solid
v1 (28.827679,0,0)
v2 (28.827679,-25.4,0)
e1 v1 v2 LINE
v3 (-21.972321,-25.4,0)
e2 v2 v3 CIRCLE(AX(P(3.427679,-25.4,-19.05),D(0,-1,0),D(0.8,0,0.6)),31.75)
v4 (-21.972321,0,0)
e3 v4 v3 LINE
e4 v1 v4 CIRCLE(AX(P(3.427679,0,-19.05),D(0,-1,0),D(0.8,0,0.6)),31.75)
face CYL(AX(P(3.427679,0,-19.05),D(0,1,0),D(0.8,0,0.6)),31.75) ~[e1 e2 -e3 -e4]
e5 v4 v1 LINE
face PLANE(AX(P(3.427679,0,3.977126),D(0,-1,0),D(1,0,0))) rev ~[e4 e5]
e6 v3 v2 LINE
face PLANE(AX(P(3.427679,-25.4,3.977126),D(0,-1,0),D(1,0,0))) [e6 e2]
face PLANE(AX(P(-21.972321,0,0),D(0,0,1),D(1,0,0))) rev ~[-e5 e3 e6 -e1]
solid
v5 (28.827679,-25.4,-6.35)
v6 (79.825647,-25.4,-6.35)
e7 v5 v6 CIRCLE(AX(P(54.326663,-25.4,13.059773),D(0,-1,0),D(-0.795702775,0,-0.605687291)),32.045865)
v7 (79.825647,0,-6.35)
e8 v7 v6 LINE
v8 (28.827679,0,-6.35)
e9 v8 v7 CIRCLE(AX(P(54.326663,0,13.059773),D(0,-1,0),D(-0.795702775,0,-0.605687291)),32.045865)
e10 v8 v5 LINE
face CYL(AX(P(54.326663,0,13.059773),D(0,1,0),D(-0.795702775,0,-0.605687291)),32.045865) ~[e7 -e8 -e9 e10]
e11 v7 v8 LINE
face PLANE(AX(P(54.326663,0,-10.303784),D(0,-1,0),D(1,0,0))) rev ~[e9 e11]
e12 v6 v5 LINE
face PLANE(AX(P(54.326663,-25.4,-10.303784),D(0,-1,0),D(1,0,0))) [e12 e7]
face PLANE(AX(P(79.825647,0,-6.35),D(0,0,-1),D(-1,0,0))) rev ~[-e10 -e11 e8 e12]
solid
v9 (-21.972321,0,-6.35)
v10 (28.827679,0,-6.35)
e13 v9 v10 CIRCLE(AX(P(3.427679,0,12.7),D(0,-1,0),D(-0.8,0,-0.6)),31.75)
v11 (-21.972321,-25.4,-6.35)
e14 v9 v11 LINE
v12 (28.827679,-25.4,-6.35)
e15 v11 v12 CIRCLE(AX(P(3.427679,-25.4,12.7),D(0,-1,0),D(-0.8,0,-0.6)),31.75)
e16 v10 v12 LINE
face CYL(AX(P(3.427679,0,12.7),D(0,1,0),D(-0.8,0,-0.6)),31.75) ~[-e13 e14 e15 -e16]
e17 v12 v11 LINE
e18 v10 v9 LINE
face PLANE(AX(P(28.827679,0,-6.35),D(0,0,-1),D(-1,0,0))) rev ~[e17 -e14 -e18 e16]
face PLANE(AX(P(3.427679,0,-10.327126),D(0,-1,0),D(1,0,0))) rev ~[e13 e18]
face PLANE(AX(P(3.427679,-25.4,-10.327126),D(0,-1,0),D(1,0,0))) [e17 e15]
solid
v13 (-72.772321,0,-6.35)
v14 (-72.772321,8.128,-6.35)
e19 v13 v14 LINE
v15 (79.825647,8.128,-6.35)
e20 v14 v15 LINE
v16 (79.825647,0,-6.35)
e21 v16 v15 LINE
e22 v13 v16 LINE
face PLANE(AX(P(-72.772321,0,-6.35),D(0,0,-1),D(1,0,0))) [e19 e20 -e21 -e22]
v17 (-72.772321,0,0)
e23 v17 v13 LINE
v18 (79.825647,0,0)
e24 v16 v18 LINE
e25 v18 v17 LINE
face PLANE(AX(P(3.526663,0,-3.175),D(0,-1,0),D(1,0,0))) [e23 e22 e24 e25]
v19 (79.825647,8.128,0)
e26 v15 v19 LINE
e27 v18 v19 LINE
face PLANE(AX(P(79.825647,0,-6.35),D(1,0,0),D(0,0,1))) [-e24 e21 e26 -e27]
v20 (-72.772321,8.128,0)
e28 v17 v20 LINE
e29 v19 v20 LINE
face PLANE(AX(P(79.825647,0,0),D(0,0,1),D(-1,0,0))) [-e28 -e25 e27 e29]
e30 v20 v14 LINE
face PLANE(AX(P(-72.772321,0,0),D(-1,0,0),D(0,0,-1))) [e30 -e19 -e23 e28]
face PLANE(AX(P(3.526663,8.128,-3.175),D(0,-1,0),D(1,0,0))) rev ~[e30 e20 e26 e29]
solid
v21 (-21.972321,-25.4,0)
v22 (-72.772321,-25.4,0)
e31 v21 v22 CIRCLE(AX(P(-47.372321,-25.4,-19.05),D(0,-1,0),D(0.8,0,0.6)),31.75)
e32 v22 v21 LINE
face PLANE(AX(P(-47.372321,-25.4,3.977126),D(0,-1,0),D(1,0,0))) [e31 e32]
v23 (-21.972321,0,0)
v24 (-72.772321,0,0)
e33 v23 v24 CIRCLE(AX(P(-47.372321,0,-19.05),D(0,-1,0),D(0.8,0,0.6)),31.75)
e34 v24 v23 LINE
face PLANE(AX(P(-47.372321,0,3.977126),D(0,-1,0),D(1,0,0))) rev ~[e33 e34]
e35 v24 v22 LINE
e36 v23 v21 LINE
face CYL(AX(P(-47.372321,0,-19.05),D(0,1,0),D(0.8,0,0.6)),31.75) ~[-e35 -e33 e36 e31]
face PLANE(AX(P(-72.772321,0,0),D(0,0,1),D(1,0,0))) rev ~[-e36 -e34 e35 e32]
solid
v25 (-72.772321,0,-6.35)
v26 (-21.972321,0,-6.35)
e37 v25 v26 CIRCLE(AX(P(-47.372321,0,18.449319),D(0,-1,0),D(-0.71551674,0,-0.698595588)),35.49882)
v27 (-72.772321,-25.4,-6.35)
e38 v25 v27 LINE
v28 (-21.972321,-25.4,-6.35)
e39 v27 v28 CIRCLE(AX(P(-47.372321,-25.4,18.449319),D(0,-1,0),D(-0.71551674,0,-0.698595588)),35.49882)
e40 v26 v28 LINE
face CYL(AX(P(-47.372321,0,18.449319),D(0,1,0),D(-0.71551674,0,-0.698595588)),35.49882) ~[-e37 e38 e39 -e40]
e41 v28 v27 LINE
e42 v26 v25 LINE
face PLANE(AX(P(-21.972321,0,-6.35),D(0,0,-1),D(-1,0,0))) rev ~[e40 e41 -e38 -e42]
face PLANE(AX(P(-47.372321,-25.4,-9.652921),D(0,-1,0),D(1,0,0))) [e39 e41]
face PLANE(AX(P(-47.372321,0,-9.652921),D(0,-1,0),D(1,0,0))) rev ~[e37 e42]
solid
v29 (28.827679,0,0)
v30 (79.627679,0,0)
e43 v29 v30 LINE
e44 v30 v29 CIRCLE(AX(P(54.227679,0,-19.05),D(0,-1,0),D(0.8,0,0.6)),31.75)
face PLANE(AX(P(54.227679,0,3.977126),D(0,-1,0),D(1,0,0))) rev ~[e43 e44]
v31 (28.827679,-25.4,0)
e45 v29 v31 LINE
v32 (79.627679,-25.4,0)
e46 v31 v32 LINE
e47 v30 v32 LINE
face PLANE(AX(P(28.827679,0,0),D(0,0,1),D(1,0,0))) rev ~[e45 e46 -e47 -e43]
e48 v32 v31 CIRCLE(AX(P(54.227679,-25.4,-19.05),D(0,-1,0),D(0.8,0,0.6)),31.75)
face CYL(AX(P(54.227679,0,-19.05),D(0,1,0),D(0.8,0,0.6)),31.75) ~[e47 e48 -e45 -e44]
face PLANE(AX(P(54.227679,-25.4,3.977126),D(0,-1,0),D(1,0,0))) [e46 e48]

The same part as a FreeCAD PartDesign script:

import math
import FreeCAD as App
import Part
import Sketcher
Q = App.Units.Quantity


def add_polygon(sketch, points):
    """Adds a closed chain of lines whose ends are joined by coincident constraints."""
    first, n = sketch.GeometryCount, len(points)
    for a, b in zip(points, points[1:] + points[:1]):
        sketch.addGeometry(Part.LineSegment(App.Vector(*a, 0), App.Vector(*b, 0)), False)
    for i in range(n):
        sketch.addConstraint(Sketcher.Constraint("Coincident", first + i, 2, first + (i + 1) % n, 1))

doc = App.newDocument("Part")
params = doc.addObject("Spreadsheet::Sheet", "Params")
for row, (alias, value) in enumerate([
    ("sketch1_width", "2 in"),
    ("sketch1_radius", "1.25 in"),
    ("pad1_length", "1 in"),
    ("sketch2_height", "0.25 in"),
    ("pad2_length", "0.32 in"),
], start=1):
    params.set(f"A{row}", alias)
    params.set(f"B{row}", "=" + value)
    params.setAlias(f"B{row}", alias)

body = doc.addObject("PartDesign::Body", "Body")
body.AllowCompound = True

# Sketch on XZ plane
sketch1 = body.newObject("Sketcher::SketchObject", "Sketch")
sketch1.AttachmentSupport = (doc.getObject("XZ_Plane"), [""])
sketch1.MapMode = "FlatFace"
sketch1.addGeometry([
    Part.LineSegment(App.Vector(-21.972321, -6.35, 0), App.Vector(-72.772321, -6.35, 0)),  # 0
    Part.ArcOfCircle(Part.Circle(App.Vector(-47.372321, 18.449319, 0), App.Vector(0, 0, 1), 35.49882), math.radians(-135.685564), math.radians(-44.314436)),  # 1
    Part.LineSegment(App.Vector(-72.772321, 0, 0), App.Vector(-21.972321, 0, 0)),  # 2
    Part.ArcOfCircle(Part.Circle(App.Vector(-47.372321, -19.05, 0), App.Vector(0, 0, 1), 31.75), math.radians(36.869898), math.radians(143.130102)),  # 3
    Part.LineSegment(App.Vector(28.827679, -6.35, 0), App.Vector(-21.972321, -6.35, 0)),  # 4
    Part.ArcOfCircle(Part.Circle(App.Vector(3.427679, 12.7, 0), App.Vector(0, 0, 1), 31.75), math.radians(-143.130102), math.radians(-36.869898)),  # 5
    Part.ArcOfCircle(Part.Circle(App.Vector(3.427679, -19.05, 0), App.Vector(0, 0, 1), 31.75), math.radians(36.869898), math.radians(143.130102)),  # 6
    Part.LineSegment(App.Vector(-21.972321, 0, 0), App.Vector(28.827679, 0, 0)),  # 7
    Part.LineSegment(App.Vector(79.825647, -6.35, 0), App.Vector(28.827679, -6.35, 0)),  # 8
    Part.ArcOfCircle(Part.Circle(App.Vector(54.326663, 13.059773, 0), App.Vector(0, 0, 1), 32.045865), math.radians(-142.721685), math.radians(-37.278315)),  # 9
    Part.ArcOfCircle(Part.Circle(App.Vector(54.227679, -19.05, 0), App.Vector(0, 0, 1), 31.75), math.radians(36.869898), math.radians(143.130102)),  # 10
    Part.LineSegment(App.Vector(28.827679, 0, 0), App.Vector(79.627679, 0, 0)),  # 11
], False)
sketch1.addConstraint([
    Sketcher.Constraint("Coincident", 0, 1, 1, 2),
    Sketcher.Constraint("Coincident", 1, 1, 0, 2),
    Sketcher.Constraint("Coincident", 2, 1, 3, 2),
    Sketcher.Constraint("Coincident", 3, 1, 2, 2),
    Sketcher.Constraint("Coincident", 4, 1, 5, 2),
    Sketcher.Constraint("Coincident", 5, 1, 4, 2),
    Sketcher.Constraint("Coincident", 6, 1, 7, 2),
    Sketcher.Constraint("Coincident", 7, 1, 6, 2),
    Sketcher.Constraint("Coincident", 8, 1, 9, 2),
    Sketcher.Constraint("Coincident", 9, 1, 8, 2),
    Sketcher.Constraint("Coincident", 10, 1, 11, 2),
    Sketcher.Constraint("Coincident", 11, 1, 10, 2),
    Sketcher.Constraint("Horizontal", 0),
    Sketcher.Constraint("Horizontal", 2),
    Sketcher.Constraint("Horizontal", 4),
    Sketcher.Constraint("Horizontal", 7),
    Sketcher.Constraint("Horizontal", 8),
    Sketcher.Constraint("Horizontal", 11),
    Sketcher.Constraint("Coincident", 5, 1, 0, 1),
    Sketcher.Constraint("Coincident", 7, 1, 3, 1),
    Sketcher.Constraint("Coincident", 9, 1, 4, 1),
    Sketcher.Constraint("Coincident", 11, 1, 6, 1),
    Sketcher.Constraint("Equal", 3, 5),
    Sketcher.Constraint("Equal", 5, 6),
    Sketcher.Constraint("Equal", 6, 10),
    Sketcher.Constraint("PointOnObject", 2, 1, -1),
    Sketcher.Constraint("Horizontal", 3, 3, 6, 3),
    Sketcher.Constraint("Horizontal", 6, 3, 10, 3),
    Sketcher.Constraint("Vertical", 1, 3, 3, 3),
    Sketcher.Constraint("Vertical", 5, 3, 6, 3),
    Sketcher.Constraint("Vertical", 1, 1, 2, 1),
    Sketcher.Constraint("DistanceX", 0, 2, 0, 1, Q("2 in")),
    Sketcher.Constraint("Radius", 3, Q("1.25 in")),
    Sketcher.Constraint("DistanceY", -1, 1, 5, 3, Q("0.5 in")),
    Sketcher.Constraint("Radius", 1, 35.49882),
    Sketcher.Constraint("Radius", 9, 32.045865),
    Sketcher.Constraint("DistanceX", 8, 2, 8, 1, 50.997968),
    Sketcher.Constraint("DistanceX", 1, 3, -1, 1, 47.372321),
])
sketch1.setExpression("Constraints[31]", "Params.sketch1_width")
sketch1.setExpression("Constraints[32]", "Params.sketch1_radius")
pad1 = body.newObject("PartDesign::Pad", "Pad")
pad1.Profile = sketch1
pad1.setExpression("Length", "Params.pad1_length")
body2 = doc.addObject("PartDesign::Body", "Body001")

# Sketch on XZ plane
sketch2 = body2.newObject("Sketcher::SketchObject", "Sketch001")
sketch2.AttachmentSupport = (doc.getObject("XZ_Plane001"), [""])
sketch2.MapMode = "FlatFace"
add_polygon(sketch2, [(-72.772321, 0), (-72.772321, -6.35), (79.825647, -6.35), (79.825647, 0)])  # lines 0-3
sketch2.addConstraint([
    Sketcher.Constraint("Vertical", 0),
    Sketcher.Constraint("Horizontal", 1),
    Sketcher.Constraint("Vertical", 2),
    Sketcher.Constraint("Horizontal", 3),
    Sketcher.Constraint("PointOnObject", 2, 2, -1),
    Sketcher.Constraint("DistanceY", 0, 2, 0, 1, Q("0.25 in")),
    Sketcher.Constraint("DistanceX", 1, 1, 1, 2, 152.597968),
    Sketcher.Constraint("DistanceX", 0, 2, -1, 1, 72.772321),
])
sketch2.setExpression("Constraints[9]", "Params.sketch2_height")
pad2 = body2.newObject("PartDesign::Pad", "Pad001")
pad2.Profile = sketch2
pad2.setExpression("Length", "Params.pad2_length")
pad2.Reversed = True

doc.recompute()
